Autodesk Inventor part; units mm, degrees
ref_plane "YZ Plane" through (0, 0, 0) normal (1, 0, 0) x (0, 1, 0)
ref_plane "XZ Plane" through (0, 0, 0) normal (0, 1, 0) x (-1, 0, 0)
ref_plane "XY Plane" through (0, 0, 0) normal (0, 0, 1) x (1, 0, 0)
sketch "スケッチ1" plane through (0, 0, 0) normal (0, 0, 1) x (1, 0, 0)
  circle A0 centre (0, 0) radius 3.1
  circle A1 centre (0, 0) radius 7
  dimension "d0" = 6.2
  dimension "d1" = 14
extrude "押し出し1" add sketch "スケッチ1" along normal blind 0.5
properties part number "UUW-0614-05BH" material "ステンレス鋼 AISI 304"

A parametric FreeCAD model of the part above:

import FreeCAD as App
import Part
import Sketcher

doc = App.newDocument("Part")
params = doc.addObject("Spreadsheet::Sheet", "Params")
for row, (alias, value) in enumerate([
    ("sketch1_diameter", "14 mm"),
    ("sketch1_diameter2", "6.2 mm"),
    ("pad1_length", "0.5 mm"),
], start=1):
    params.set(f"A{row}", alias)
    params.set(f"B{row}", "=" + value)
    params.setAlias(f"B{row}", alias)

body = doc.addObject("PartDesign::Body", "Body")

# Sketch on XY plane
sketch1 = doc.addObject("Sketcher::SketchObject", "Sketch")
body.addObject(sketch1)
sketch1.AttachmentSupport = (doc.XY_Plane, [""])
sketch1.MapMode = "FlatFace"
sketch1.addGeometry(Part.Circle(App.Vector(0, 0, 0), App.Vector(0, 0, 1), 7), False)
sketch1.addGeometry(Part.Circle(App.Vector(0, 0, 0), App.Vector(0, 0, 1), 3.1), False)
sketch1.addConstraint(Sketcher.Constraint("Coincident", 0, 3, -1, 1))
sketch1.addConstraint(Sketcher.Constraint("Coincident", 1, 3, -1, 1))
sketch1.addConstraint(Sketcher.Constraint("Diameter", 0, 14.0))
sketch1.addConstraint(Sketcher.Constraint("Diameter", 1, 6.2))
sketch1.setExpression("Constraints[2]", "Params.sketch1_diameter")
sketch1.setExpression("Constraints[3]", "Params.sketch1_diameter2")
pad1 = doc.addObject("PartDesign::Pad", "Pad")
body.addObject(pad1)
pad1.Profile = sketch1
pad1.setExpression("Length", "Params.pad1_length")

doc.recompute()
